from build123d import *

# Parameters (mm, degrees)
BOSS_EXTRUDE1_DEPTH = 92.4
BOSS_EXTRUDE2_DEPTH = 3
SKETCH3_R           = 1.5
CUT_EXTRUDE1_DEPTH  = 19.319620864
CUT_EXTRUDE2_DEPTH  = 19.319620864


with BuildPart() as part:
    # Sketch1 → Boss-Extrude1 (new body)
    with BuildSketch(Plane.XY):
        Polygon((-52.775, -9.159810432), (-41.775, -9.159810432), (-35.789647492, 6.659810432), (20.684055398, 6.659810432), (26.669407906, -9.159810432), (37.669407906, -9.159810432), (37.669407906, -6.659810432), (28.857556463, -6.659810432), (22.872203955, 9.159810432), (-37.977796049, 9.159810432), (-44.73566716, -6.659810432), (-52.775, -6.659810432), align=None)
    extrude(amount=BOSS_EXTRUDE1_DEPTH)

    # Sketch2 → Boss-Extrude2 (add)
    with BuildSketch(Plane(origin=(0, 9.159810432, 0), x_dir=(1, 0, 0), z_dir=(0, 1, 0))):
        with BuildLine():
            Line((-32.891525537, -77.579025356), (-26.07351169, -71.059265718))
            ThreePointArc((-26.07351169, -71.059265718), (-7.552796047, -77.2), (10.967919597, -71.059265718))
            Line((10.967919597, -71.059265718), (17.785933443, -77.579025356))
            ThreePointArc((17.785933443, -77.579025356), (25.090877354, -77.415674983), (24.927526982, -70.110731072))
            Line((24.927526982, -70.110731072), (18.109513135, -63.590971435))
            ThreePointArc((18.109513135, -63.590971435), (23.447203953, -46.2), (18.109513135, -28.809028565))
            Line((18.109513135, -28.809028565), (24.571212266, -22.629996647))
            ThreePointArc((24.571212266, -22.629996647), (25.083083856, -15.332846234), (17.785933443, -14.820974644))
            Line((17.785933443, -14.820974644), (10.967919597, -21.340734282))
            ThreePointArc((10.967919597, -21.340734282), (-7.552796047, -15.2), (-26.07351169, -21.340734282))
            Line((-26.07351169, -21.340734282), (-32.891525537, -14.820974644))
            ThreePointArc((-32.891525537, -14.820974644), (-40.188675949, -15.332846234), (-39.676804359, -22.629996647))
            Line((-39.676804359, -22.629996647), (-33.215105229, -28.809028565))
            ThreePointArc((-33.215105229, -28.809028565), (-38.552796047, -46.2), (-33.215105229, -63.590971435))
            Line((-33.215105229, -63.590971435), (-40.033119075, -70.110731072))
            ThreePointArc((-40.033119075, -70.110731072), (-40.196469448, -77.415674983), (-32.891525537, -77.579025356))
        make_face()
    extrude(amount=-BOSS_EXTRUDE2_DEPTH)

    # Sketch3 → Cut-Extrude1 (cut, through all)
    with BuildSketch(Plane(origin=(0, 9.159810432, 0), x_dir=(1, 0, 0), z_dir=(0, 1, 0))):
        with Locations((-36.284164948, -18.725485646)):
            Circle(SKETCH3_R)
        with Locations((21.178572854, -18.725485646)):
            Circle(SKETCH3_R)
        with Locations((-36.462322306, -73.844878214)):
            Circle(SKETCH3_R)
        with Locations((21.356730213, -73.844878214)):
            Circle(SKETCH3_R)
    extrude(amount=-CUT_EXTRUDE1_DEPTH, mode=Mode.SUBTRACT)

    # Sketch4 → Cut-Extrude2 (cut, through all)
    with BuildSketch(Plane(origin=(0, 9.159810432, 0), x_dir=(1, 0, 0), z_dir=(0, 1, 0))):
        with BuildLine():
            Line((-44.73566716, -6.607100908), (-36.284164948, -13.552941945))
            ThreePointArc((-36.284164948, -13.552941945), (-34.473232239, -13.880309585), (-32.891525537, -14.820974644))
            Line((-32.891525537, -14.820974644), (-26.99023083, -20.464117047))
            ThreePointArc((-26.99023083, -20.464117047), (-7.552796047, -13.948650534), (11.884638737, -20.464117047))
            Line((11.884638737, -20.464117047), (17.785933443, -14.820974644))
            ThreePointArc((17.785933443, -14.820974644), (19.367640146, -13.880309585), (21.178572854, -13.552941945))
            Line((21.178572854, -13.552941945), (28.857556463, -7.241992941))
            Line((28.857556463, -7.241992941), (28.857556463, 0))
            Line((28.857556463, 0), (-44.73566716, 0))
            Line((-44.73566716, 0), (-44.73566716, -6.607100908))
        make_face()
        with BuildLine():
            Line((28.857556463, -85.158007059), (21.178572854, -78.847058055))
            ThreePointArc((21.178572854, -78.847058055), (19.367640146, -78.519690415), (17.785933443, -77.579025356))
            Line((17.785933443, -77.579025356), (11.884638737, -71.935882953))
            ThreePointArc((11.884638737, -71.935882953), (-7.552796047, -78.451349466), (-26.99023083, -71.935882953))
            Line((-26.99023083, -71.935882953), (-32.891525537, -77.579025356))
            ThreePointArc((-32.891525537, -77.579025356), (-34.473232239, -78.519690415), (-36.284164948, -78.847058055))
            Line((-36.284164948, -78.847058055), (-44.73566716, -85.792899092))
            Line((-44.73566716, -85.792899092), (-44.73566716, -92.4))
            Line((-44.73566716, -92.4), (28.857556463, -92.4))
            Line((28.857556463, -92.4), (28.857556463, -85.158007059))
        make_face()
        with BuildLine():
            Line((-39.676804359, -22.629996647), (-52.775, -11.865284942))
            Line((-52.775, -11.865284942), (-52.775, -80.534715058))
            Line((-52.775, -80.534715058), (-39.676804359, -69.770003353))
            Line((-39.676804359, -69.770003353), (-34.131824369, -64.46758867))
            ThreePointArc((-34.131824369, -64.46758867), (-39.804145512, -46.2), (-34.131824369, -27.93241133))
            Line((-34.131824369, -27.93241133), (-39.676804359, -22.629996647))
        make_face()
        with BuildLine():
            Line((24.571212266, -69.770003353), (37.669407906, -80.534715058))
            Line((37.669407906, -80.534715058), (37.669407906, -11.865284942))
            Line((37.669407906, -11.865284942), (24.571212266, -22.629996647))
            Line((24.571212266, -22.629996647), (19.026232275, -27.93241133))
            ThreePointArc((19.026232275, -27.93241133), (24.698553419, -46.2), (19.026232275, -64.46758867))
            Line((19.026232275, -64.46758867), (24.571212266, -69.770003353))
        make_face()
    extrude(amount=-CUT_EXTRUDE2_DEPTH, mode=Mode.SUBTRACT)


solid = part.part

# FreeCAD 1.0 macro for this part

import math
import FreeCAD as App
import Part
import Sketcher
Q = App.Units.Quantity

doc = App.newDocument("Part")
body = doc.addObject("PartDesign::Body", "Body")

# Sketch on XY plane
sketch1 = body.newObject("Sketcher::SketchObject", "Sketch")
sketch1.AttachmentSupport = (doc.getObject("XY_Plane"), [""])
sketch1.MapMode = "FlatFace"
sketch1.addGeometry([
    Part.LineSegment(App.Vector(-52.8, -9.2, 0), App.Vector(-41.8, -9.2, 0)),  # 0
    Part.LineSegment(App.Vector(-41.8, -9.2, 0), App.Vector(-35.8, 6.7, 0)),  # 1
    Part.LineSegment(App.Vector(-35.8, 6.7, 0), App.Vector(20.7, 6.7, 0)),  # 2
    Part.LineSegment(App.Vector(20.7, 6.7, 0), App.Vector(26.7, -9.2, 0)),  # 3
    Part.LineSegment(App.Vector(26.7, -9.2, 0), App.Vector(37.7, -9.2, 0)),  # 4
    Part.LineSegment(App.Vector(37.7, -9.2, 0), App.Vector(37.7, -6.7, 0)),  # 5
    Part.LineSegment(App.Vector(37.7, -6.7, 0), App.Vector(28.9, -6.7, 0)),  # 6
    Part.LineSegment(App.Vector(28.9, -6.7, 0), App.Vector(22.9, 9.2, 0)),  # 7
    Part.LineSegment(App.Vector(22.9, 9.2, 0), App.Vector(-38, 9.2, 0)),  # 8
    Part.LineSegment(App.Vector(-38, 9.2, 0), App.Vector(-44.7, -6.7, 0)),  # 9
    Part.LineSegment(App.Vector(-44.7, -6.7, 0), App.Vector(-52.8, -6.7, 0)),  # 10
    Part.LineSegment(App.Vector(-52.8, -6.7, 0), App.Vector(-52.8, -9.2, 0)),  # 11
], False)
sketch1.addConstraint([
    Sketcher.Constraint("Coincident", 0, 2, 1, 1),
    Sketcher.Constraint("Coincident", 1, 2, 2, 1),
    Sketcher.Constraint("Coincident", 2, 2, 3, 1),
    Sketcher.Constraint("Coincident", 3, 2, 4, 1),
    Sketcher.Constraint("Coincident", 4, 2, 5, 1),
    Sketcher.Constraint("Coincident", 5, 2, 6, 1),
    Sketcher.Constraint("Coincident", 6, 2, 7, 1),
    Sketcher.Constraint("Coincident", 7, 2, 8, 1),
    Sketcher.Constraint("Coincident", 8, 2, 9, 1),
    Sketcher.Constraint("Coincident", 9, 2, 10, 1),
    Sketcher.Constraint("Coincident", 10, 2, 11, 1),
    Sketcher.Constraint("Coincident", 11, 2, 0, 1),
    Sketcher.Constraint("Horizontal", 0),
    Sketcher.Constraint("Horizontal", 2),
    Sketcher.Constraint("Horizontal", 4),
    Sketcher.Constraint("Vertical", 5),
    Sketcher.Constraint("Horizontal", 6),
    Sketcher.Constraint("Horizontal", 8),
    Sketcher.Constraint("Horizontal", 10),
    Sketcher.Constraint("Vertical", 11),
    Sketcher.Constraint("Parallel", 3, 7),
    Sketcher.Constraint("Horizontal", 0, 2, 3, 2),
    Sketcher.Constraint("Horizontal", 6, 2, 9, 2),
    Sketcher.Constraint("Equal", 0, 4),
    Sketcher.Constraint("Equal", 1, 3),
    Sketcher.Constraint("Equal", 3, 7),
    Sketcher.Constraint("DistanceX", 0, 1, 0, 2, Q("11 mm")),
    Sketcher.Constraint("DistanceY", 5, 1, 5, 2, Q("2.5 mm")),
    Sketcher.Constraint("DistanceX", 8, 2, 8, 1, Q("60.85 mm")),
    Sketcher.Constraint("DistanceX", 0, 2, -1, 1, Q("41.775 mm")),
    Sketcher.Constraint("DistanceX", 6, 2, 6, 1, Q("8.811851 mm")),
    Sketcher.Constraint("DistanceX", 2, 2, 6, 2, Q("8.173501 mm")),
    Sketcher.Constraint("DistanceX", 2, 1, 2, 2, Q("56.473703 mm")),
    Sketcher.Constraint("DistanceX", 10, 2, 10, 1, Q("8.039333 mm")),
    Sketcher.Constraint("DistanceY", 0, 2, -1, 1, Q("9.15981 mm")),
    Sketcher.Constraint("DistanceY", -1, 1, 1, 2, Q("6.65981 mm")),
])
pad1 = body.newObject("PartDesign::Pad", "Pad")
pad1.Profile = sketch1
pad1.Length = 92.4

# Sketch on XZ plane
sketch2 = body.newObject("Sketcher::SketchObject", "Sketch001")
sketch2.AttachmentSupport = (doc.getObject("XZ_Plane"), [""])
sketch2.MapMode = "FlatFace"
sketch2.AttachmentOffset = App.Placement(App.Vector(0, 0, -9.15981), App.Rotation())
sketch2.addGeometry([
    Part.LineSegment(App.Vector(-33, 78, 0), App.Vector(-26, 71, 0)),  # 0
    Part.ArcOfCircle(Part.Circle(App.Vector(-8, 46, 0), App.Vector(0, 0, 1), 31), math.radians(53), math.radians(127)),  # 1
    Part.LineSegment(App.Vector(11, 71, 0), App.Vector(18, 78, 0)),  # 2
    Part.ArcOfCircle(Part.Circle(App.Vector(21, 74, 0), App.Vector(0, 0, 1), 5), math.radians(-46), math.radians(134)),  # 3
    Part.LineSegment(App.Vector(25, 70, 0), App.Vector(18, 64, 0)),  # 4
    Part.ArcOfCircle(Part.Circle(App.Vector(-8, 46, 0), App.Vector(0, 0, 1), 31), math.radians(-34), math.radians(34)),  # 5
    Part.LineSegment(App.Vector(18, 29, 0), App.Vector(25, 23, 0)),  # 6
    Part.ArcOfCircle(Part.Circle(App.Vector(21, 19, 0), App.Vector(0, 0, 1), 5), math.radians(-131), math.radians(49)),  # 7
    Part.LineSegment(App.Vector(18, 15, 0), App.Vector(11, 21, 0)),  # 8
    Part.ArcOfCircle(Part.Circle(App.Vector(-8, 46, 0), App.Vector(0, 0, 1), 31), math.radians(-127), math.radians(-53)),  # 9
    Part.LineSegment(App.Vector(-26, 21, 0), App.Vector(-33, 15, 0)),  # 10
    Part.ArcOfCircle(Part.Circle(App.Vector(-36, 19, 0), App.Vector(0, 0, 1), 5), math.radians(131), math.radians(311)),  # 11
    Part.LineSegment(App.Vector(-40, 23, 0), App.Vector(-33, 29, 0)),  # 12
    Part.ArcOfCircle(Part.Circle(App.Vector(-8, 46, 0), App.Vector(0, 0, 1), 31), math.radians(146), math.radians(214)),  # 13
    Part.LineSegment(App.Vector(-33, 64, 0), App.Vector(-40, 70, 0)),  # 14
    Part.ArcOfCircle(Part.Circle(App.Vector(-36, 74, 0), App.Vector(0, 0, 1), 5), math.radians(46), math.radians(226)),  # 15
], False)
sketch2.addConstraint([
    Sketcher.Constraint("Coincident", 0, 2, 1, 2),
    Sketcher.Constraint("Coincident", 1, 1, 2, 1),
    Sketcher.Constraint("Tangent", 2, 2, 3, 2),
    Sketcher.Constraint("Tangent", 3, 1, 4, 1),
    Sketcher.Constraint("Coincident", 4, 2, 5, 2),
    Sketcher.Constraint("Coincident", 5, 1, 6, 1),
    Sketcher.Constraint("Coincident", 6, 2, 7, 2),
    Sketcher.Constraint("Coincident", 7, 1, 8, 1),
    Sketcher.Constraint("Coincident", 8, 2, 9, 2),
    Sketcher.Constraint("Coincident", 9, 1, 10, 1),
    Sketcher.Constraint("Coincident", 10, 2, 11, 2),
    Sketcher.Constraint("Coincident", 11, 1, 12, 1),
    Sketcher.Constraint("Coincident", 12, 2, 13, 2),
    Sketcher.Constraint("Coincident", 13, 1, 14, 1),
    Sketcher.Constraint("Tangent", 14, 2, 15, 2),
    Sketcher.Constraint("Tangent", 15, 1, 0, 1),
    Sketcher.Constraint("Coincident", 5, 3, 1, 3),
    Sketcher.Constraint("Coincident", 9, 3, 1, 3),
    Sketcher.Constraint("Coincident", 13, 3, 1, 3),
    Sketcher.Constraint("Equal", 1, 5),
    Sketcher.Constraint("Equal", 5, 9),
    Sketcher.Constraint("Equal", 7, 11),
    Sketcher.Constraint("Equal", 9, 13),
    Sketcher.Constraint("Equal", 3, 15),
    Sketcher.Constraint("Parallel", 2, 4),
    Sketcher.Constraint("Parallel", 0, 6),
    Sketcher.Constraint("Parallel", 6, 8),
    Sketcher.Constraint("Parallel", 4, 10),
    Sketcher.Constraint("Parallel", 10, 12),
    Sketcher.Constraint("Parallel", 8, 14),
    Sketcher.Constraint("Horizontal", 7, 3, 11, 3),
    Sketcher.Constraint("Horizontal", 3, 3, 15, 3),
    Sketcher.Constraint("Horizontal", 0, 2, 1, 1),
    Sketcher.Constraint("Horizontal", 8, 2, 9, 1),
    Sketcher.Constraint("Horizontal", 7, 1, 10, 2),
    Sketcher.Constraint("Horizontal", 6, 2, 11, 1),
    Sketcher.Constraint("Horizontal", 3, 1, 14, 2),
    Sketcher.Constraint("Vertical", 4, 2, 5, 1),
    Sketcher.Constraint("Vertical", 2, 2, 7, 1),
    Sketcher.Constraint("Vertical", 1, 1, 8, 2),
    Sketcher.Constraint("Equal", 2, 4),
    Sketcher.Constraint("Radius", 1, Q("31 mm")),
    Sketcher.Constraint("DistanceY", -1, 1, 1, 3, Q("46.2 mm")),
    Sketcher.Constraint("Radius", 3, Q("5.166667 mm")),
    Sketcher.Constraint("Radius", 7, Q("5.172544 mm")),
    Sketcher.Constraint("DistanceX", 5, 1, 6, 2, Q("6.461699 mm")),
    Sketcher.Constraint("Distance", 6, Q("8.940581 mm")),
    Sketcher.Constraint("DistanceX", -1, 1, 3, 3, Q("21.35673 mm")),
    Sketcher.Constraint("DistanceX", 1, 3, 7, 3, Q("28.731369 mm")),
])
pad2 = body.newObject("PartDesign::Pad", "Pad001")
pad2.Profile = sketch2
pad2.Length = 3

# Sketch on XZ plane
sketch3 = body.newObject("Sketcher::SketchObject", "Sketch002")
sketch3.AttachmentSupport = (doc.getObject("XZ_Plane"), [""])
sketch3.MapMode = "FlatFace"
sketch3.AttachmentOffset = App.Placement(App.Vector(0, 0, -9.15981), App.Rotation())
sketch3.addGeometry([
    Part.Circle(App.Vector(-36.3, 18.7, 0), App.Vector(0, 0, 1), 1.5),
    Part.Circle(App.Vector(21.2, 18.7, 0), App.Vector(0, 0, 1), 1.5),
    Part.Circle(App.Vector(-36.5, 73.8, 0), App.Vector(0, 0, 1), 1.5),
    Part.Circle(App.Vector(21.4, 73.8, 0), App.Vector(0, 0, 1), 1.5),
], False)
sketch3.addConstraint([
    Sketcher.Constraint("Equal", 0, 1),
    Sketcher.Constraint("Equal", 1, 2),
    Sketcher.Constraint("Equal", 2, 3),
    Sketcher.Constraint("Horizontal", 0, 3, 1, 3),
    Sketcher.Constraint("Horizontal", 2, 3, 3, 3),
    Sketcher.Constraint("Diameter", 0, Q("3 mm")),
    Sketcher.Constraint("DistanceY", -1, 1, 2, 3, Q("73.844878 mm")),
    Sketcher.Constraint("DistanceX", -1, 1, 3, 3, Q("21.35673 mm")),
    Sketcher.Constraint("DistanceX", 0, 3, -1, 1, Q("36.284165 mm")),
    Sketcher.Constraint("DistanceY", -1, 1, 0, 3, Q("18.725486 mm")),
    Sketcher.Constraint("DistanceX", -1, 1, 1, 3, Q("21.178573 mm")),
    Sketcher.Constraint("DistanceX", 2, 3, -1, 1, Q("36.462322 mm")),
])
pocket1 = body.newObject("PartDesign::Pocket", "Pocket")
pocket1.Profile = sketch3
pocket1.Type = "ThroughAll"
pocket1.Reversed = True

# Sketch on XZ plane
sketch4 = body.newObject("Sketcher::SketchObject", "Sketch003")
sketch4.AttachmentSupport = (doc.getObject("XZ_Plane"), [""])
sketch4.MapMode = "FlatFace"
sketch4.AttachmentOffset = App.Placement(App.Vector(0, 0, -9.15981), App.Rotation())
sketch4.addGeometry([
    Part.LineSegment(App.Vector(-44.7, 6.6, 0), App.Vector(-36.3, 13.6, 0)),  # 0
    Part.ArcOfCircle(Part.Circle(App.Vector(-36.3, 18.7, 0), App.Vector(0, 0, 1), 5.2), math.radians(-90), math.radians(-49)),  # 1
    Part.LineSegment(App.Vector(-32.9, 14.8, 0), App.Vector(-27, 20.5, 0)),  # 2
    Part.ArcOfCircle(Part.Circle(App.Vector(-7.6, 46.2, 0), App.Vector(0, 0, 1), 32.3), math.radians(-127), math.radians(-53)),  # 3
    Part.LineSegment(App.Vector(11.9, 20.5, 0), App.Vector(17.8, 14.8, 0)),  # 4
    Part.ArcOfCircle(Part.Circle(App.Vector(21.2, 18.7, 0), App.Vector(0, 0, 1), 5.2), math.radians(-131), math.radians(-90)),  # 5
    Part.LineSegment(App.Vector(21.2, 13.6, 0), App.Vector(28.9, 7.2, 0)),  # 6
    Part.LineSegment(App.Vector(28.9, 7.2, 0), App.Vector(28.9, 0, 0)),  # 7
    Part.LineSegment(App.Vector(28.9, 0, 0), App.Vector(-44.7, 0, 0)),  # 8
    Part.LineSegment(App.Vector(-44.7, 0, 0), App.Vector(-44.7, 6.6, 0)),  # 9
    Part.LineSegment(App.Vector(28.9, 85.2, 0), App.Vector(21.2, 78.8, 0)),  # 10
    Part.ArcOfCircle(Part.Circle(App.Vector(21.2, 73.7, 0), App.Vector(0, 0, 1), 5.2), math.radians(90), math.radians(131)),  # 11
    Part.LineSegment(App.Vector(17.8, 77.6, 0), App.Vector(11.9, 71.9, 0)),  # 12
    Part.ArcOfCircle(Part.Circle(App.Vector(-7.6, 46.2, 0), App.Vector(0, 0, 1), 32.3), math.radians(53), math.radians(127)),  # 13
    Part.LineSegment(App.Vector(-27, 71.9, 0), App.Vector(-32.9, 77.6, 0)),  # 14
    Part.ArcOfCircle(Part.Circle(App.Vector(-36.3, 73.7, 0), App.Vector(0, 0, 1), 5.2), math.radians(49), math.radians(90)),  # 15
    Part.LineSegment(App.Vector(-36.3, 78.8, 0), App.Vector(-44.7, 85.8, 0)),  # 16
    Part.LineSegment(App.Vector(-44.7, 85.8, 0), App.Vector(-44.7, 92.4, 0)),  # 17
    Part.LineSegment(App.Vector(-44.7, 92.4, 0), App.Vector(28.9, 92.4, 0)),  # 18
    Part.LineSegment(App.Vector(28.9, 92.4, 0), App.Vector(28.9, 85.2, 0)),  # 19
    Part.LineSegment(App.Vector(-39.7, 22.6, 0), App.Vector(-52.8, 11.9, 0)),  # 20
    Part.LineSegment(App.Vector(-52.8, 11.9, 0), App.Vector(-52.8, 80.5, 0)),  # 21
    Part.LineSegment(App.Vector(-52.8, 80.5, 0), App.Vector(-39.7, 69.8, 0)),  # 22
    Part.LineSegment(App.Vector(-39.7, 69.8, 0), App.Vector(-34.1, 64.5, 0)),  # 23
    Part.ArcOfCircle(Part.Circle(App.Vector(-7.6, 46.2, 0), App.Vector(0, 0, 1), 32.3), math.radians(145), math.radians(215)),  # 24
    Part.LineSegment(App.Vector(-34.1, 27.9, 0), App.Vector(-39.7, 22.6, 0)),  # 25
    Part.LineSegment(App.Vector(24.6, 69.8, 0), App.Vector(37.7, 80.5, 0)),  # 26
    Part.LineSegment(App.Vector(37.7, 80.5, 0), App.Vector(37.7, 11.9, 0)),  # 27
    Part.LineSegment(App.Vector(37.7, 11.9, 0), App.Vector(24.6, 22.6, 0)),  # 28
    Part.LineSegment(App.Vector(24.6, 22.6, 0), App.Vector(19, 27.9, 0)),  # 29
    Part.ArcOfCircle(Part.Circle(App.Vector(-7.6, 46.2, 0), App.Vector(0, 0, 1), 32.3), math.radians(-35), math.radians(35)),  # 30
    Part.LineSegment(App.Vector(19, 64.5, 0), App.Vector(24.6, 69.8, 0)),  # 31
], False)
sketch4.addConstraint([
    Sketcher.Constraint("Coincident", 0, 2, 1, 1),
    Sketcher.Constraint("Coincident", 1, 2, 2, 1),
    Sketcher.Constraint("Coincident", 2, 2, 3, 1),
    Sketcher.Constraint("Coincident", 3, 2, 4, 1),
    Sketcher.Constraint("Coincident", 4, 2, 5, 1),
    Sketcher.Constraint("Coincident", 5, 2, 6, 1),
    Sketcher.Constraint("Coincident", 6, 2, 7, 1),
    Sketcher.Constraint("Coincident", 7, 2, 8, 1),
    Sketcher.Constraint("Coincident", 8, 2, 9, 1),
    Sketcher.Constraint("Coincident", 9, 2, 0, 1),
    Sketcher.Constraint("Coincident", 10, 2, 11, 1),
    Sketcher.Constraint("Coincident", 11, 2, 12, 1),
    Sketcher.Constraint("Coincident", 12, 2, 13, 1),
    Sketcher.Constraint("Coincident", 13, 2, 14, 1),
    Sketcher.Constraint("Coincident", 14, 2, 15, 1),
    Sketcher.Constraint("Coincident", 15, 2, 16, 1),
    Sketcher.Constraint("Coincident", 16, 2, 17, 1),
    Sketcher.Constraint("Coincident", 17, 2, 18, 1),
    Sketcher.Constraint("Coincident", 18, 2, 19, 1),
    Sketcher.Constraint("Coincident", 19, 2, 10, 1),
    Sketcher.Constraint("Coincident", 20, 2, 21, 1),
    Sketcher.Constraint("Coincident", 21, 2, 22, 1),
    Sketcher.Constraint("Coincident", 22, 2, 23, 1),
    Sketcher.Constraint("Coincident", 23, 2, 24, 1),
    Sketcher.Constraint("Coincident", 24, 2, 25, 1),
    Sketcher.Constraint("Coincident", 25, 2, 20, 1),
    Sketcher.Constraint("Coincident", 26, 2, 27, 1),
    Sketcher.Constraint("Coincident", 27, 2, 28, 1),
    Sketcher.Constraint("Coincident", 28, 2, 29, 1),
    Sketcher.Constraint("Coincident", 29, 2, 30, 1),
    Sketcher.Constraint("Coincident", 30, 2, 31, 1),
    Sketcher.Constraint("Coincident", 31, 2, 26, 1),
    Sketcher.Constraint("Vertical", 7),
    Sketcher.Constraint("Horizontal", 8),
    Sketcher.Constraint("Vertical", 9),
    Sketcher.Constraint("Vertical", 17),
    Sketcher.Constraint("Horizontal", 18),
    Sketcher.Constraint("Vertical", 19),
    Sketcher.Constraint("Vertical", 21),
    Sketcher.Constraint("Vertical", 27),
    Sketcher.Constraint("Coincident", 13, 3, 3, 3),
    Sketcher.Constraint("Coincident", 24, 3, 3, 3),
    Sketcher.Constraint("Coincident", 30, 3, 3, 3),
    Sketcher.Constraint("Equal", 1, 5),
    Sketcher.Constraint("Equal", 5, 11),
    Sketcher.Constraint("Equal", 3, 13),
    Sketcher.Constraint("Equal", 11, 15),
    Sketcher.Constraint("Equal", 13, 24),
    Sketcher.Constraint("Equal", 24, 30),
    Sketcher.Constraint("PointOnObject", 7, 2, -1),
    Sketcher.Constraint("Parallel", 0, 10),
    Sketcher.Constraint("Parallel", 2, 12),
    Sketcher.Constraint("Parallel", 4, 14),
    Sketcher.Constraint("Parallel", 6, 16),
    Sketcher.Constraint("Parallel", 10, 20),
    Sketcher.Constraint("Parallel", 16, 22),
    Sketcher.Constraint("Parallel", 14, 23),
    Sketcher.Constraint("Parallel", 12, 25),
    Sketcher.Constraint("Parallel", 20, 26),
    Sketcher.Constraint("Parallel", 22, 28),
    Sketcher.Constraint("Parallel", 23, 29),
    Sketcher.Constraint("Parallel", 25, 31),
    Sketcher.Constraint("Horizontal", 1, 3, 5, 3),
    Sketcher.Constraint("Horizontal", 11, 3, 15, 3),
    Sketcher.Constraint("Horizontal", 2, 2, 3, 2),
    Sketcher.Constraint("Horizontal", 1, 2, 4, 2),
    Sketcher.Constraint("Horizontal", 12, 2, 13, 2),
    Sketcher.Constraint("Horizontal", 11, 2, 14, 2),
    Sketcher.Constraint("Horizontal", 21, 2, 26, 2),
    Sketcher.Constraint("Horizontal", 20, 2, 27, 2),
    Sketcher.Constraint("Horizontal", 25, 2, 28, 2),
    Sketcher.Constraint("Horizontal", 24, 2, 29, 2),
    Sketcher.Constraint("Horizontal", 23, 2, 30, 2),
    Sketcher.Constraint("Horizontal", 22, 2, 31, 2),
    Sketcher.Constraint("Vertical", 5, 3, 11, 3),
    Sketcher.Constraint("Vertical", 1, 3, 15, 3),
    Sketcher.Constraint("Vertical", 15, 3, 0, 2),
    Sketcher.Constraint("Vertical", 11, 3, 5, 2),
    Sketcher.Constraint("Vertical", 5, 2, 10, 2),
    Sketcher.Constraint("Vertical", 4, 2, 11, 2),
    Sketcher.Constraint("Vertical", 3, 2, 12, 2),
    Sketcher.Constraint("Vertical", 0, 2, 15, 2),
    Sketcher.Constraint("Vertical", 9, 2, 16, 2),
    Sketcher.Constraint("Vertical", 7, 2, 18, 2),
    Sketcher.Constraint("Vertical", 23, 2, 24, 2),
    Sketcher.Constraint("Vertical", 22, 2, 25, 2),
    Sketcher.Constraint("Equal", 9, 17),
    Sketcher.Constraint("DistanceY", -1, 1, 3, 3, Q("46.2 mm")),
    Sketcher.Constraint("Radius", 3, Q("32.251349 mm")),
    Sketcher.Constraint("DistanceY", 9, 1, 9, 2, Q("6.607101 mm")),
    Sketcher.Constraint("DistanceX", 20, 2, -1, 1, Q("52.775 mm")),
    Sketcher.Constraint("Radius", 1, Q("5.172544 mm")),
    Sketcher.Constraint("DistanceY", 21, 1, 21, 2, Q("68.66943 mm")),
    Sketcher.Constraint("DistanceY", 20, 2, 1, 3, Q("6.860201 mm")),
    Sketcher.Constraint("DistanceX", 23, 2, 14, 2, Q("1.240299 mm")),
    Sketcher.Constraint("Distance", 2, Q("8.16519 mm")),
    Sketcher.Constraint("Distance", 6, Q("9.939561 mm")),
    Sketcher.Constraint("DistanceX", 8, 2, 8, 1, Q("73.593224 mm")),
    Sketcher.Constraint("DistanceY", 7, 2, 7, 1, Q("7.241993 mm")),
    Sketcher.Constraint("DistanceX", 2, 2, -1, 1, Q("26.990231 mm")),
    Sketcher.Constraint("DistanceX", -1, 1, 12, 2, Q("11.884639 mm")),
])
pocket2 = body.newObject("PartDesign::Pocket", "Pocket001")
pocket2.Profile = sketch4
pocket2.Type = "ThroughAll"
pocket2.Reversed = True

doc.recompute()
